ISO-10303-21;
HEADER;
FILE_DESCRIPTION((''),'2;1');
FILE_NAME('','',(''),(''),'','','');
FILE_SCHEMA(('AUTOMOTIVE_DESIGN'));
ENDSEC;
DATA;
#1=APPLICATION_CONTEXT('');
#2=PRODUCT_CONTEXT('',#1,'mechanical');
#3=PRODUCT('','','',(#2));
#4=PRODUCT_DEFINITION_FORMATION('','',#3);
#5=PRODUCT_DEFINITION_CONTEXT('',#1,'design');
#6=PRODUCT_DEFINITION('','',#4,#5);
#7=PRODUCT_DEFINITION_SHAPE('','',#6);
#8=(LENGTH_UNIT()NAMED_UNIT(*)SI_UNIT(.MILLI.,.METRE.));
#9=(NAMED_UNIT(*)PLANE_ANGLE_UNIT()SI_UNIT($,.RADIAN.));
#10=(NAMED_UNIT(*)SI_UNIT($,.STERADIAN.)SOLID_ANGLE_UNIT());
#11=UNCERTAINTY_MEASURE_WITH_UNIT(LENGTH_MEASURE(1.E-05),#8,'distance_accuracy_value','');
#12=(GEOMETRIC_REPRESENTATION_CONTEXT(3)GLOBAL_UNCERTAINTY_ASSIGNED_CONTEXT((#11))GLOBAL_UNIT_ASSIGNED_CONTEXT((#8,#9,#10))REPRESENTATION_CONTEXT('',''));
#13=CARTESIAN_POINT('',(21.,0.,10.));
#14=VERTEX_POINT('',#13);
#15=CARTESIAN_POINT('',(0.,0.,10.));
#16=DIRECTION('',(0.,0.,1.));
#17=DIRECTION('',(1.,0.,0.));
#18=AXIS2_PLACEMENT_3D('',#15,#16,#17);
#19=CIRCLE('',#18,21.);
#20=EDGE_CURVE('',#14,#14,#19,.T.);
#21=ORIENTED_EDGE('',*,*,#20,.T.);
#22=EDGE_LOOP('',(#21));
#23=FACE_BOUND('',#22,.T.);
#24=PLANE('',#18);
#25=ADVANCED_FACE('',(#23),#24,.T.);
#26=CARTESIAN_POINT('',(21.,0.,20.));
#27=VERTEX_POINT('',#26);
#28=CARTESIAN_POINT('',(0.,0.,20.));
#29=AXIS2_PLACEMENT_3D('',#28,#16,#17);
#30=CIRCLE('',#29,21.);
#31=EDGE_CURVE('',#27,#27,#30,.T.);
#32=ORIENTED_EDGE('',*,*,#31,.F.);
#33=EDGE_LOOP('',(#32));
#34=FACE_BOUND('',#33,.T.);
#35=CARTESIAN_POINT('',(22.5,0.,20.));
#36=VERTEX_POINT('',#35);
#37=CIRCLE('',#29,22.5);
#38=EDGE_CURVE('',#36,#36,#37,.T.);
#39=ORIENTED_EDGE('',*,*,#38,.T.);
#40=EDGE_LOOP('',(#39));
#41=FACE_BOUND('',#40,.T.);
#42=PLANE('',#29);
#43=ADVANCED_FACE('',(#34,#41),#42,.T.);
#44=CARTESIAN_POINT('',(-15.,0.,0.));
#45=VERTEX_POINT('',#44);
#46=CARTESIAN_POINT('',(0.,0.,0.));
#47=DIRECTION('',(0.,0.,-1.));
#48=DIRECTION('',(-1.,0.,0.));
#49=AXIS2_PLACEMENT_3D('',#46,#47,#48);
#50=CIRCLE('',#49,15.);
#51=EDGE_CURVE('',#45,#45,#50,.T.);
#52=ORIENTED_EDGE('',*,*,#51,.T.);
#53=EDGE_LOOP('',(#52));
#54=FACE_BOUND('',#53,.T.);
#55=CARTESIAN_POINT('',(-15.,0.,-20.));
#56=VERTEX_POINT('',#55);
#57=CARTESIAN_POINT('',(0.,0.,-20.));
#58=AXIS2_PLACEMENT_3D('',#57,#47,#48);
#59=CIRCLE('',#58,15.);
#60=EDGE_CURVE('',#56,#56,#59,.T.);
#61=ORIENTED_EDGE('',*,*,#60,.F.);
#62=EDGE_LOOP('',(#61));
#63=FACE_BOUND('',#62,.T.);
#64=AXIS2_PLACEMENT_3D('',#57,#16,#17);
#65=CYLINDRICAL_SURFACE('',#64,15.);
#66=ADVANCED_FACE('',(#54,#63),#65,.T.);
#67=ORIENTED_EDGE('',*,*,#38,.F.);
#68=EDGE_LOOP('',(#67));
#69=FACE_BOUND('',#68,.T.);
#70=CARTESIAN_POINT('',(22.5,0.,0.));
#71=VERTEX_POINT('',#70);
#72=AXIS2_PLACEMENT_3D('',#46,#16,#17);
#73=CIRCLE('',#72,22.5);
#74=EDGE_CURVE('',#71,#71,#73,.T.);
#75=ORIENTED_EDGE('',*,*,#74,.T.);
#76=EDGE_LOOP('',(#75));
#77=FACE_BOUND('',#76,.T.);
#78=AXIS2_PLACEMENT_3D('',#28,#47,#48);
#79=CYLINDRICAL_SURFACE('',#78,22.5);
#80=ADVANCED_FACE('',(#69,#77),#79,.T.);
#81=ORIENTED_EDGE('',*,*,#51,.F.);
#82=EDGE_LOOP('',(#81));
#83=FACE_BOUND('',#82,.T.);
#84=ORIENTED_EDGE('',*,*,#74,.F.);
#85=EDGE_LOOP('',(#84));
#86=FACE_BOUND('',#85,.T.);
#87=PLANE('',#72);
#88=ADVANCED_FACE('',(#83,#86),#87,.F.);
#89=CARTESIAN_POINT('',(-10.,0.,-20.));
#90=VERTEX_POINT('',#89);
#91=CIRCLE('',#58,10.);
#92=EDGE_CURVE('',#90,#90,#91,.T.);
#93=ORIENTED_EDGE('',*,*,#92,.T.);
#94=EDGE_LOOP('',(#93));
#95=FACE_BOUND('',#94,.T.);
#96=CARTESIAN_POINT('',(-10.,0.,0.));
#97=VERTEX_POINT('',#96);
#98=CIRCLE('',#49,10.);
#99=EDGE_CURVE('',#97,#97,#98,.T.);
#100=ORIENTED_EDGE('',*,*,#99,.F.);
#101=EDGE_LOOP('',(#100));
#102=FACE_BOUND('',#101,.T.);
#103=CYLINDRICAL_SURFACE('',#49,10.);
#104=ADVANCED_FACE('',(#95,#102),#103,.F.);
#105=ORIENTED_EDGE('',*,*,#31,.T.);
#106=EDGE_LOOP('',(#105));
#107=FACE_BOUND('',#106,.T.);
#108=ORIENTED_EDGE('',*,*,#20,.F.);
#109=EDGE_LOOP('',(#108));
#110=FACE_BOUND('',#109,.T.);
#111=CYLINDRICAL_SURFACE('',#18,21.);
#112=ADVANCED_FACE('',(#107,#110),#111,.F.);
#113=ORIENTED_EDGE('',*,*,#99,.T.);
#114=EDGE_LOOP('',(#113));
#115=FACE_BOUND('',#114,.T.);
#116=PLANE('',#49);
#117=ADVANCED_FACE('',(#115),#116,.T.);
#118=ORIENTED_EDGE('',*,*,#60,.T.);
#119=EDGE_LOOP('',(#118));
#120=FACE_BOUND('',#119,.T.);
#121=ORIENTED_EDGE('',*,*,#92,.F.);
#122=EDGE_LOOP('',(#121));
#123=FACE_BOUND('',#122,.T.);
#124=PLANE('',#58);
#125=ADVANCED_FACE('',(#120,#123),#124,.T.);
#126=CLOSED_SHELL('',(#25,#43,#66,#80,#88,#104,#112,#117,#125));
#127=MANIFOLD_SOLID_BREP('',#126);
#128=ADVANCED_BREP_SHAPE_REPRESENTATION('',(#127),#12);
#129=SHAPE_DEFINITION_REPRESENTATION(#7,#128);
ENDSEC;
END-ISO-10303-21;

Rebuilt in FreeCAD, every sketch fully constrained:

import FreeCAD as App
import Part
import Sketcher

doc = App.newDocument("Part")
body = doc.addObject("PartDesign::Body", "Body")

sketch1 = body.newObject("Sketcher::SketchObject", "Sketch")
sketch1.AttachmentSupport = (doc.getObject("XY_Plane"), [""])
sketch1.MapMode = "FlatFace"
sketch1.addGeometry(Part.Circle(App.Vector(0, 0, 0), App.Vector(0, 0, 1), 22.5), False)
sketch1.addConstraint(Sketcher.Constraint("Coincident", 0, 3, -1, 1))
sketch1.addConstraint(Sketcher.Constraint("Diameter", 0, 45.0))
pad1 = body.newObject("PartDesign::Pad", "Pad")
pad1.Profile = sketch1
pad1.Length = 20

sketch2 = body.newObject("Sketcher::SketchObject", "Sketch001")
sketch2.AttachmentSupport = (doc.getObject("XY_Plane"), [""])
sketch2.MapMode = "FlatFace"
sketch2.AttachmentOffset = App.Placement(App.Vector(0, 0, 20), App.Rotation())
sketch2.addGeometry(Part.Circle(App.Vector(0, 0, 0), App.Vector(0, 0, 1), 21), False)
sketch2.addConstraint(Sketcher.Constraint("Coincident", 0, 3, -1, 1))
sketch2.addConstraint(Sketcher.Constraint("Diameter", 0, 42.0))
pocket1 = body.newObject("PartDesign::Pocket", "Pocket")
pocket1.Profile = sketch2
pocket1.Length = 10

sketch3 = body.newObject("Sketcher::SketchObject", "Sketch002")
sketch3.AttachmentSupport = (doc.getObject("XY_Plane"), [""])
sketch3.MapMode = "FlatFace"
sketch3.addGeometry(Part.Circle(App.Vector(0, 0, 0), App.Vector(0, 0, 1), 15), False)
sketch3.addConstraint(Sketcher.Constraint("Coincident", 0, 3, -1, 1))
sketch3.addConstraint(Sketcher.Constraint("Diameter", 0, 30.0))
pad2 = body.newObject("PartDesign::Pad", "Pad001")
pad2.Profile = sketch3
pad2.Length = 20
pad2.Reversed = True

sketch4 = body.newObject("Sketcher::SketchObject", "Sketch003")
sketch4.AttachmentSupport = (doc.getObject("XY_Plane"), [""])
sketch4.MapMode = "FlatFace"
sketch4.AttachmentOffset = App.Placement(App.Vector(0, 0, -20), App.Rotation())
sketch4.addGeometry(Part.Circle(App.Vector(0, 0, 0), App.Vector(0, 0, 1), 10), False)
sketch4.addConstraint(Sketcher.Constraint("Coincident", 0, 3, -1, 1))
sketch4.addConstraint(Sketcher.Constraint("Diameter", 0, 20.0))
pocket2 = body.newObject("PartDesign::Pocket", "Pocket001")
pocket2.Profile = sketch4
pocket2.Length = 20
pocket2.Reversed = True

doc.recompute()
